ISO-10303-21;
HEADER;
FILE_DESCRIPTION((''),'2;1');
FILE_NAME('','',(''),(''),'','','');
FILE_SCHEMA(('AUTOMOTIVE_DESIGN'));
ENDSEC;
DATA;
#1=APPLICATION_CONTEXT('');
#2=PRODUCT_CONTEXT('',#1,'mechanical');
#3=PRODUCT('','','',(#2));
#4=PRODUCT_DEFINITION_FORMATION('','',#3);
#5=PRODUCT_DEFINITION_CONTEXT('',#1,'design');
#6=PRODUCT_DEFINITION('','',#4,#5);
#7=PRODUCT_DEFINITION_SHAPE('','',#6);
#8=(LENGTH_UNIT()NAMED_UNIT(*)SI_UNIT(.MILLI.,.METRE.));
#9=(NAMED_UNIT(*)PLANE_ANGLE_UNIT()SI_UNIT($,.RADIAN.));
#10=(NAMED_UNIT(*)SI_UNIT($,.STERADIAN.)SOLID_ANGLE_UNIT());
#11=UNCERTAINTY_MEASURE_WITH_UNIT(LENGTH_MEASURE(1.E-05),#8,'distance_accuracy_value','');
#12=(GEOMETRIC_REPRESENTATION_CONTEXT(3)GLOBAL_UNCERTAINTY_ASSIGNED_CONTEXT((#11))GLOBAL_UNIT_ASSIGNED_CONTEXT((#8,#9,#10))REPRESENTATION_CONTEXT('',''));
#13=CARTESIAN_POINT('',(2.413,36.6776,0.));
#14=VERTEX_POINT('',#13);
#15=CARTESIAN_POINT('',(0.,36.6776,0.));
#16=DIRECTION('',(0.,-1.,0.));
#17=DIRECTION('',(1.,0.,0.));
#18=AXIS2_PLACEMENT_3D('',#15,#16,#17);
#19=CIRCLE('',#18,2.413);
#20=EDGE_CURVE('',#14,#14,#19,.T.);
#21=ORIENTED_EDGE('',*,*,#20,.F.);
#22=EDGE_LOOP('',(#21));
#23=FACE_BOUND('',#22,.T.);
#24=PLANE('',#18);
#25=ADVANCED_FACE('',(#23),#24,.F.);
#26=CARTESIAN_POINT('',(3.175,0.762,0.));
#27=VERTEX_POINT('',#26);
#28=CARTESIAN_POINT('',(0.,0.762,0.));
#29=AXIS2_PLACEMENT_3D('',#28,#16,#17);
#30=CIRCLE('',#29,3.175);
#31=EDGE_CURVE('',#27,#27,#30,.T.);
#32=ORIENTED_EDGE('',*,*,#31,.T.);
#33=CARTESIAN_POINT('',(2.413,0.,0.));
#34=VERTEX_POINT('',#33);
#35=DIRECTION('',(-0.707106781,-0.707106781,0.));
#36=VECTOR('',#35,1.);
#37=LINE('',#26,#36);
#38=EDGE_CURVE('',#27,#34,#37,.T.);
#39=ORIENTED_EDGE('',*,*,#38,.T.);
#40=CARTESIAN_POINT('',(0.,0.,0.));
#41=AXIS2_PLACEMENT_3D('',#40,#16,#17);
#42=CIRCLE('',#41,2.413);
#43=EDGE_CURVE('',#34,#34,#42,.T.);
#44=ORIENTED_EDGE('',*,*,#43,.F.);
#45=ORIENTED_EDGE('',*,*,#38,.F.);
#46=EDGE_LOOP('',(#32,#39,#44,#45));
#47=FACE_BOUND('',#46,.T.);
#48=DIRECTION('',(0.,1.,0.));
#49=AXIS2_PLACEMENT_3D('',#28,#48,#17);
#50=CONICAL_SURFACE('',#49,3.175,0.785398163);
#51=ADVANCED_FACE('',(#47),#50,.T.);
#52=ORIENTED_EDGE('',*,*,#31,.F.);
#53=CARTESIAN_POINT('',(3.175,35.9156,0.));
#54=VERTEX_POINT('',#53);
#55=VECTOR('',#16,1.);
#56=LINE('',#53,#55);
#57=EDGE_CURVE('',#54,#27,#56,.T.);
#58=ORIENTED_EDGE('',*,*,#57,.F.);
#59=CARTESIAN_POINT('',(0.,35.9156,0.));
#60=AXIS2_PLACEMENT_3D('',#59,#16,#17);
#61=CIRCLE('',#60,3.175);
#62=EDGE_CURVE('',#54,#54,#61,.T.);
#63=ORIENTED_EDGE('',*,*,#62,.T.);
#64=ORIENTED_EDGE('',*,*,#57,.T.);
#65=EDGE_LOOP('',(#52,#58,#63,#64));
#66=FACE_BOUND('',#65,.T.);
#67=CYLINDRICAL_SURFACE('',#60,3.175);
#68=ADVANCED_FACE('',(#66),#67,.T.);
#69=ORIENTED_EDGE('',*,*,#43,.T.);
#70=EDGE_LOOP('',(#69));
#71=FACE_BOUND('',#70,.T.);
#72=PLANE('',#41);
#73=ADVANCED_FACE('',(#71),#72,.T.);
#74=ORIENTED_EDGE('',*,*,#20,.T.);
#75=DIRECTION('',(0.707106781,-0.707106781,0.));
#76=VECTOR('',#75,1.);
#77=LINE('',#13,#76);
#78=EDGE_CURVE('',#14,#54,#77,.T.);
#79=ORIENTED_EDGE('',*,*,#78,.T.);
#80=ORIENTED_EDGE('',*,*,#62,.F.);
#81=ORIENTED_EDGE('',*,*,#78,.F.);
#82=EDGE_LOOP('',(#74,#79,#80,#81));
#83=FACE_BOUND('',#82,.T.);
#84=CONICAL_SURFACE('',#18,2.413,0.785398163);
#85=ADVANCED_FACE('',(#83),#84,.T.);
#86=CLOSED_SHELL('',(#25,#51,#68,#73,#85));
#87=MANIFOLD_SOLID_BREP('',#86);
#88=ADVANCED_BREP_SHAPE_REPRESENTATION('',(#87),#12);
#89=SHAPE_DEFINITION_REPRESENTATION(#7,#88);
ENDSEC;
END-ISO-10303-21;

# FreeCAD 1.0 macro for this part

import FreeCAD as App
import Part
import Sketcher
Q = App.Units.Quantity

doc = App.newDocument("Part")
body = doc.addObject("PartDesign::Body", "Body")

# Sketch on XY plane
sketch1 = doc.addObject("Sketcher::SketchObject", "Sketch")
body.addObject(sketch1)
sketch1.AttachmentSupport = (doc.XY_Plane, [""])
sketch1.MapMode = "FlatFace"
sketch1.addGeometry([
    Part.LineSegment(App.Vector(0, 36.6776, 0), App.Vector(0, 0, 0)),  # 0
    Part.LineSegment(App.Vector(0, 0, 0), App.Vector(2.413, 0, 0)),  # 1
    Part.LineSegment(App.Vector(2.413, 0, 0), App.Vector(3.175, 0.762, 0)),  # 2
    Part.LineSegment(App.Vector(3.175, 0.762, 0), App.Vector(3.175, 35.9156, 0)),  # 3
    Part.LineSegment(App.Vector(3.175, 35.9156, 0), App.Vector(2.413, 36.6776, 0)),  # 4
    Part.LineSegment(App.Vector(2.413, 36.6776, 0), App.Vector(0, 36.6776, 0)),  # 5
], False)
sketch1.addConstraint([
    Sketcher.Constraint("Coincident", 0, 2, 1, 1),
    Sketcher.Constraint("Coincident", 1, 2, 2, 1),
    Sketcher.Constraint("Coincident", 2, 2, 3, 1),
    Sketcher.Constraint("Coincident", 3, 2, 4, 1),
    Sketcher.Constraint("Coincident", 4, 2, 5, 1),
    Sketcher.Constraint("Coincident", 5, 2, 0, 1),
    Sketcher.Constraint("Vertical", 0),
    Sketcher.Constraint("Horizontal", 1),
    Sketcher.Constraint("Vertical", 3),
    Sketcher.Constraint("Horizontal", 5),
    Sketcher.Constraint("Coincident", 0, 2, -1, 1),
    Sketcher.Constraint("Perpendicular", 2, 4),
    Sketcher.Constraint("Vertical", 1, 2, 4, 2),
    Sketcher.Constraint("Equal", 2, 4),
    Sketcher.Constraint("DistanceX", 1, 1, 1, 2, Q("0.095 in")),
    Sketcher.Constraint("DistanceY", 0, 2, 0, 1, Q("1.444 in")),
    Sketcher.Constraint("DistanceY", 3, 1, 3, 2, Q("1.384 in")),
])
revolution = doc.addObject("PartDesign::Revolution", "Revolution")
body.addObject(revolution)
revolution.Profile = sketch1
revolution.ReferenceAxis = (sketch1, ["V_Axis"])
revolution.Angle = 360

doc.recompute()
